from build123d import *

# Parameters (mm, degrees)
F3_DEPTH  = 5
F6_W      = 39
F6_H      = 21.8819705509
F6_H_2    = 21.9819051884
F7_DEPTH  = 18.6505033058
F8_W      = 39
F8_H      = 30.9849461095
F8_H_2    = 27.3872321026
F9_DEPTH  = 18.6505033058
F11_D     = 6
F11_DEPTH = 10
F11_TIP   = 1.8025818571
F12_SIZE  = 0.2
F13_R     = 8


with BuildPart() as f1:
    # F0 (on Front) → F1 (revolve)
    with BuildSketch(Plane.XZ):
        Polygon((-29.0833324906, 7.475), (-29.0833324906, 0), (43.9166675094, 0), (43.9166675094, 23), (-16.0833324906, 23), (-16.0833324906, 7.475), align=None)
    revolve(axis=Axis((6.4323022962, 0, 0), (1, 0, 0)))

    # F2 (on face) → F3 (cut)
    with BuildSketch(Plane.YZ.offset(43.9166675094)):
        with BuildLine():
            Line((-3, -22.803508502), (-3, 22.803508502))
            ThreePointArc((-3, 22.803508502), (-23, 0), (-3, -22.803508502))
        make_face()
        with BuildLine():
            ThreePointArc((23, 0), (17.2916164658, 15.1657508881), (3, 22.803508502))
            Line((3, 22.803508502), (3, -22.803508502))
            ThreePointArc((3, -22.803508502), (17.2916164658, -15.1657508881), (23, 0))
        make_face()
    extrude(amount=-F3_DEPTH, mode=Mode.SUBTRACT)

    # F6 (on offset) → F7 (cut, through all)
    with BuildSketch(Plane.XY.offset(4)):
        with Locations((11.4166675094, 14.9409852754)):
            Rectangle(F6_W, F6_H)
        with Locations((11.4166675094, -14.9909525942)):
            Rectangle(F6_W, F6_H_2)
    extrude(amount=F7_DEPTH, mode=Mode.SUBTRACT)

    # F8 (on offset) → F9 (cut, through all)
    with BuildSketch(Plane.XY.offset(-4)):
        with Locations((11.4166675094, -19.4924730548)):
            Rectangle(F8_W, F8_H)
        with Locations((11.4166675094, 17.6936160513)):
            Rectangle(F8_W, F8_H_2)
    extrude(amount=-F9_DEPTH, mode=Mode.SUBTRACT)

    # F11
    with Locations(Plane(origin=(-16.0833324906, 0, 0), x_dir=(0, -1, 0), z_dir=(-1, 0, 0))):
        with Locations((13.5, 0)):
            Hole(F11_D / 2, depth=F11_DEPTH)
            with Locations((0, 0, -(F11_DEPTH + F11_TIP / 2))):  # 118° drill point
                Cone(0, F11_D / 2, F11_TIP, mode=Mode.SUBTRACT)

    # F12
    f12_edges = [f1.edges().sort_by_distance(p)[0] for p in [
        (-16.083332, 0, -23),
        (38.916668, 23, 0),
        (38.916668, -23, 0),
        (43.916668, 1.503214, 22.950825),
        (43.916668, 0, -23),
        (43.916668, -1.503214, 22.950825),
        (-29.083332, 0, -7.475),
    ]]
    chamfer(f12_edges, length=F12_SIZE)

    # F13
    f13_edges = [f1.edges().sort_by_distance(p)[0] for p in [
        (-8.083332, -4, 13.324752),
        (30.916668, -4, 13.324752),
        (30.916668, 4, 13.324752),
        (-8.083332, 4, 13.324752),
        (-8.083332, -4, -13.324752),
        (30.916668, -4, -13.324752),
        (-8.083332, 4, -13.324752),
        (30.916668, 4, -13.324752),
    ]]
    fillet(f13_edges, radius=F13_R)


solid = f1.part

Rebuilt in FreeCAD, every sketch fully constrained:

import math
import FreeCAD as App
import Part
import Sketcher
Q = App.Units.Quantity


def edges_at(feature, points):
    """Names of the edges that pass closest to the given points."""
    edges = feature.Shape.Edges
    near = lambda p: min(range(len(edges)), key=lambda i: edges[i].distToShape(Part.Vertex(*p))[0])
    return sorted({f"Edge{near(p) + 1}" for p in points})

doc = App.newDocument("Part")
body = doc.addObject("PartDesign::Body", "Body")

sketch1 = doc.addObject("Sketcher::SketchObject", "Sketch")
body.addObject(sketch1)
sketch1.AttachmentSupport = (doc.XZ_Plane, [""])
sketch1.MapMode = "FlatFace"
sketch1.addGeometry(Part.LineSegment(App.Vector(-29.083332, 7.475, 0), App.Vector(-29.083332, 0, 0)), False)
sketch1.addGeometry(Part.LineSegment(App.Vector(-29.083332, 0, 0), App.Vector(43.916668, 0, 0)), False)
sketch1.addGeometry(Part.LineSegment(App.Vector(43.916668, 0, 0), App.Vector(43.916668, 23, 0)), False)
sketch1.addGeometry(Part.LineSegment(App.Vector(43.916668, 23, 0), App.Vector(-16.083332, 23, 0)), False)
sketch1.addGeometry(Part.LineSegment(App.Vector(-16.083332, 23, 0), App.Vector(-16.083332, 7.475, 0)), False)
sketch1.addGeometry(Part.LineSegment(App.Vector(-16.083332, 7.475, 0), App.Vector(-29.083332, 7.475, 0)), False)
sketch1.addConstraint(Sketcher.Constraint("Coincident", 0, 2, 1, 1))
sketch1.addConstraint(Sketcher.Constraint("Coincident", 1, 2, 2, 1))
sketch1.addConstraint(Sketcher.Constraint("Coincident", 2, 2, 3, 1))
sketch1.addConstraint(Sketcher.Constraint("Coincident", 3, 2, 4, 1))
sketch1.addConstraint(Sketcher.Constraint("Coincident", 4, 2, 5, 1))
sketch1.addConstraint(Sketcher.Constraint("Coincident", 5, 2, 0, 1))
sketch1.addConstraint(Sketcher.Constraint("Vertical", 0))
sketch1.addConstraint(Sketcher.Constraint("Horizontal", 1))
sketch1.addConstraint(Sketcher.Constraint("Vertical", 2))
sketch1.addConstraint(Sketcher.Constraint("Horizontal", 3))
sketch1.addConstraint(Sketcher.Constraint("Vertical", 4))
sketch1.addConstraint(Sketcher.Constraint("Horizontal", 5))
sketch1.addConstraint(Sketcher.Constraint("PointOnObject", 0, 2, -1))
sketch1.addConstraint(Sketcher.Constraint("DistanceX", 1, 1, 1, 2, Q("73 mm")))
sketch1.addConstraint(Sketcher.Constraint("DistanceX", 3, 2, 3, 1, Q("60 mm")))
sketch1.addConstraint(Sketcher.Constraint("DistanceY", 2, 1, 2, 2, Q("23 mm")))
sketch1.addConstraint(Sketcher.Constraint("DistanceY", 0, 2, 0, 1, Q("7.475 mm")))
sketch1.addConstraint(Sketcher.Constraint("DistanceX", 0, 2, -1, 1, Q("29.083332 mm")))
revolution = doc.addObject("PartDesign::Revolution", "Revolution")
body.addObject(revolution)
revolution.Profile = sketch1
revolution.ReferenceAxis = (sketch1, ["H_Axis"])
revolution.Angle = 360

sketch2 = doc.addObject("Sketcher::SketchObject", "Sketch001")
body.addObject(sketch2)
sketch2.AttachmentSupport = (doc.YZ_Plane, [""])
sketch2.MapMode = "FlatFace"
sketch2.AttachmentOffset = App.Placement(App.Vector(0, 0, 43.916668), App.Rotation())
sketch2.addGeometry(Part.LineSegment(App.Vector(-3, -22.803509, 0), App.Vector(-3, 22.803509, 0)), False)
sketch2.addGeometry(Part.ArcOfCircle(Part.Circle(App.Vector(0, 0, 0), App.Vector(0, 0, 1), 23), math.radians(97.494717), math.radians(262.505283)), False)
sketch2.addGeometry(Part.LineSegment(App.Vector(3, 22.803509, 0), App.Vector(3, -22.803509, 0)), False)
sketch2.addGeometry(Part.ArcOfCircle(Part.Circle(App.Vector(0, 0, 0), App.Vector(0, 0, 1), 23), math.radians(-82.505283), math.radians(82.505283)), False)
sketch2.addConstraint(Sketcher.Constraint("Coincident", 0, 1, 1, 2))
sketch2.addConstraint(Sketcher.Constraint("Coincident", 1, 1, 0, 2))
sketch2.addConstraint(Sketcher.Constraint("Coincident", 2, 1, 3, 2))
sketch2.addConstraint(Sketcher.Constraint("Coincident", 3, 1, 2, 2))
sketch2.addConstraint(Sketcher.Constraint("Vertical", 0))
sketch2.addConstraint(Sketcher.Constraint("Vertical", 2))
sketch2.addConstraint(Sketcher.Constraint("Coincident", 1, 3, -1, 1))
sketch2.addConstraint(Sketcher.Constraint("Coincident", 3, 3, -1, 1))
sketch2.addConstraint(Sketcher.Constraint("Equal", 1, 3))
sketch2.addConstraint(Sketcher.Constraint("Horizontal", 1, 1, 2, 1))
sketch2.addConstraint(Sketcher.Constraint("Radius", 1, Q("23 mm")))
sketch2.addConstraint(Sketcher.Constraint("DistanceX", 0, 1, -1, 1, Q("3 mm")))
pocket1 = doc.addObject("PartDesign::Pocket", "Pocket")
body.addObject(pocket1)
pocket1.Profile = sketch2
pocket1.Length = 5

sketch3 = doc.addObject("Sketcher::SketchObject", "Sketch002")
body.addObject(sketch3)
sketch3.AttachmentSupport = (doc.XY_Plane, [""])
sketch3.MapMode = "FlatFace"
sketch3.AttachmentOffset = App.Placement(App.Vector(0, 0, 4), App.Rotation())
sketch3.addGeometry(Part.LineSegment(App.Vector(-8.083332, 25.881971, 0), App.Vector(-8.083332, 4, 0)), False)
sketch3.addGeometry(Part.LineSegment(App.Vector(-8.083332, 4, 0), App.Vector(30.916668, 4, 0)), False)
sketch3.addGeometry(Part.LineSegment(App.Vector(30.916668, 4, 0), App.Vector(30.916668, 25.881971, 0)), False)
sketch3.addGeometry(Part.LineSegment(App.Vector(30.916668, 25.881971, 0), App.Vector(-8.083332, 25.881971, 0)), False)
sketch3.addGeometry(Part.LineSegment(App.Vector(-8.083332, -4, 0), App.Vector(-8.083332, -25.981905, 0)), False)
sketch3.addGeometry(Part.LineSegment(App.Vector(-8.083332, -25.981905, 0), App.Vector(30.916668, -25.981905, 0)), False)
sketch3.addGeometry(Part.LineSegment(App.Vector(30.916668, -25.981905, 0), App.Vector(30.916668, -4, 0)), False)
sketch3.addGeometry(Part.LineSegment(App.Vector(30.916668, -4, 0), App.Vector(-8.083332, -4, 0)), False)
sketch3.addConstraint(Sketcher.Constraint("Coincident", 0, 2, 1, 1))
sketch3.addConstraint(Sketcher.Constraint("Coincident", 1, 2, 2, 1))
sketch3.addConstraint(Sketcher.Constraint("Coincident", 2, 2, 3, 1))
sketch3.addConstraint(Sketcher.Constraint("Coincident", 3, 2, 0, 1))
sketch3.addConstraint(Sketcher.Constraint("Coincident", 4, 2, 5, 1))
sketch3.addConstraint(Sketcher.Constraint("Coincident", 5, 2, 6, 1))
sketch3.addConstraint(Sketcher.Constraint("Coincident", 6, 2, 7, 1))
sketch3.addConstraint(Sketcher.Constraint("Coincident", 7, 2, 4, 1))
sketch3.addConstraint(Sketcher.Constraint("Vertical", 0))
sketch3.addConstraint(Sketcher.Constraint("Horizontal", 1))
sketch3.addConstraint(Sketcher.Constraint("Vertical", 2))
sketch3.addConstraint(Sketcher.Constraint("Horizontal", 3))
sketch3.addConstraint(Sketcher.Constraint("Vertical", 4))
sketch3.addConstraint(Sketcher.Constraint("Horizontal", 5))
sketch3.addConstraint(Sketcher.Constraint("Vertical", 6))
sketch3.addConstraint(Sketcher.Constraint("Horizontal", 7))
sketch3.addConstraint(Sketcher.Constraint("Symmetric", 1, 2, 6, 2, -1))
sketch3.addConstraint(Sketcher.Constraint("Vertical", 3, 2, 4, 2))
sketch3.addConstraint(Sketcher.Constraint("DistanceX", 1, 1, 1, 2, Q("39 mm")))
sketch3.addConstraint(Sketcher.Constraint("DistanceY", -1, 1, 0, 2, Q("4 mm")))
sketch3.addConstraint(Sketcher.Constraint("DistanceY", 0, 2, 0, 1, Q("21.881971 mm")))
sketch3.addConstraint(Sketcher.Constraint("DistanceY", 4, 2, 4, 1, Q("21.981905 mm")))
sketch3.addConstraint(Sketcher.Constraint("DistanceX", 0, 2, -1, 1, Q("8.083332 mm")))
pocket2 = doc.addObject("PartDesign::Pocket", "Pocket001")
body.addObject(pocket2)
pocket2.Profile = sketch3
pocket2.Type = "ThroughAll"
pocket2.Reversed = True

sketch4 = doc.addObject("Sketcher::SketchObject", "Sketch003")
body.addObject(sketch4)
sketch4.AttachmentSupport = (doc.XY_Plane, [""])
sketch4.MapMode = "FlatFace"
sketch4.AttachmentOffset = App.Placement(App.Vector(0, 0, -4), App.Rotation())
sketch4.addGeometry(Part.LineSegment(App.Vector(-8.083332, -4, 0), App.Vector(-8.083332, -34.984946, 0)), False)
sketch4.addGeometry(Part.LineSegment(App.Vector(-8.083332, -34.984946, 0), App.Vector(30.916668, -34.984946, 0)), False)
sketch4.addGeometry(Part.LineSegment(App.Vector(30.916668, -34.984946, 0), App.Vector(30.916668, -4, 0)), False)
sketch4.addGeometry(Part.LineSegment(App.Vector(30.916668, -4, 0), App.Vector(-8.083332, -4, 0)), False)
sketch4.addGeometry(Part.LineSegment(App.Vector(-8.083332, 31.387232, 0), App.Vector(-8.083332, 4, 0)), False)
sketch4.addGeometry(Part.LineSegment(App.Vector(-8.083332, 4, 0), App.Vector(30.916668, 4, 0)), False)
sketch4.addGeometry(Part.LineSegment(App.Vector(30.916668, 4, 0), App.Vector(30.916668, 31.387232, 0)), False)
sketch4.addGeometry(Part.LineSegment(App.Vector(30.916668, 31.387232, 0), App.Vector(-8.083332, 31.387232, 0)), False)
sketch4.addConstraint(Sketcher.Constraint("Coincident", 0, 2, 1, 1))
sketch4.addConstraint(Sketcher.Constraint("Coincident", 1, 2, 2, 1))
sketch4.addConstraint(Sketcher.Constraint("Coincident", 2, 2, 3, 1))
sketch4.addConstraint(Sketcher.Constraint("Coincident", 3, 2, 0, 1))
sketch4.addConstraint(Sketcher.Constraint("Coincident", 4, 2, 5, 1))
sketch4.addConstraint(Sketcher.Constraint("Coincident", 5, 2, 6, 1))
sketch4.addConstraint(Sketcher.Constraint("Coincident", 6, 2, 7, 1))
sketch4.addConstraint(Sketcher.Constraint("Coincident", 7, 2, 4, 1))
sketch4.addConstraint(Sketcher.Constraint("Vertical", 0))
sketch4.addConstraint(Sketcher.Constraint("Horizontal", 1))
sketch4.addConstraint(Sketcher.Constraint("Vertical", 2))
sketch4.addConstraint(Sketcher.Constraint("Horizontal", 3))
sketch4.addConstraint(Sketcher.Constraint("Vertical", 4))
sketch4.addConstraint(Sketcher.Constraint("Horizontal", 5))
sketch4.addConstraint(Sketcher.Constraint("Vertical", 6))
sketch4.addConstraint(Sketcher.Constraint("Horizontal", 7))
sketch4.addConstraint(Sketcher.Constraint("Symmetric", 3, 2, 4, 2, -1))
sketch4.addConstraint(Sketcher.Constraint("Vertical", 2, 2, 5, 2))
sketch4.addConstraint(Sketcher.Constraint("DistanceX", 1, 1, 1, 2, Q("39 mm")))
sketch4.addConstraint(Sketcher.Constraint("DistanceY", 2, 2, -1, 1, Q("4 mm")))
sketch4.addConstraint(Sketcher.Constraint("DistanceY", 0, 2, 0, 1, Q("30.984946 mm")))
sketch4.addConstraint(Sketcher.Constraint("DistanceY", 4, 2, 4, 1, Q("27.387232 mm")))
sketch4.addConstraint(Sketcher.Constraint("DistanceX", 0, 2, -1, 1, Q("8.083332 mm")))
pocket3 = doc.addObject("PartDesign::Pocket", "Pocket002")
body.addObject(pocket3)
pocket3.Profile = sketch4
pocket3.Type = "ThroughAll"

sketch5 = doc.addObject("Sketcher::SketchObject", "Sketch004")
body.addObject(sketch5)
sketch5.AttachmentSupport = (doc.YZ_Plane, [""])
sketch5.MapMode = "FlatFace"
sketch5.AttachmentOffset = App.Placement(App.Vector(0, 0, -16.083332), App.Rotation())
sketch5.addGeometry(Part.Circle(App.Vector(-13.5, 0, 0), App.Vector(0, 0, 1), 3), False)
sketch5.addConstraint(Sketcher.Constraint("PointOnObject", 0, 3, -1))
sketch5.addConstraint(Sketcher.Constraint("Diameter", 0, Q("6 mm")))
sketch5.addConstraint(Sketcher.Constraint("DistanceX", 0, 3, -1, 1, Q("13.5 mm")))
doc.recompute()
hole = doc.addObject("PartDesign::Hole", "Hole")
body.addObject(hole)
hole.Profile = sketch5
hole.ThreadType = "None"
hole.Diameter = 6
hole.DepthType = "Dimension"
hole.Depth = 10
hole.DrillPoint = "Angled"
hole.DrillPointAngle = 118
hole.Reversed = True
doc.recompute()

chamfer = doc.addObject("PartDesign::Chamfer", "Chamfer")
body.addObject(chamfer)
chamfer.Base = (hole, edges_at(hole, [
    (-16.083, 0, -23),
    (38.917, 23, 0),
    (38.917, -23, 0),
    (43.917, 1.503, 22.951),
    (43.917, 0, -23),
    (43.917, -1.503, 22.951),
    (-29.083, 0, -7.475),
]))
chamfer.Size = 0.2
doc.recompute()

fillet = doc.addObject("PartDesign::Fillet", "Fillet")
body.addObject(fillet)
fillet.Base = (chamfer, edges_at(chamfer, [
    (-8.083, -4, 13.325),
    (30.917, -4, 13.325),
    (30.917, 4, 13.325),
    (-8.083, 4, 13.325),
    (-8.083, -4, -13.325),
    (30.917, -4, -13.325),
    (-8.083, 4, -13.325),
    (30.917, 4, -13.325),
]))
fillet.Radius = 8

doc.recompute()
